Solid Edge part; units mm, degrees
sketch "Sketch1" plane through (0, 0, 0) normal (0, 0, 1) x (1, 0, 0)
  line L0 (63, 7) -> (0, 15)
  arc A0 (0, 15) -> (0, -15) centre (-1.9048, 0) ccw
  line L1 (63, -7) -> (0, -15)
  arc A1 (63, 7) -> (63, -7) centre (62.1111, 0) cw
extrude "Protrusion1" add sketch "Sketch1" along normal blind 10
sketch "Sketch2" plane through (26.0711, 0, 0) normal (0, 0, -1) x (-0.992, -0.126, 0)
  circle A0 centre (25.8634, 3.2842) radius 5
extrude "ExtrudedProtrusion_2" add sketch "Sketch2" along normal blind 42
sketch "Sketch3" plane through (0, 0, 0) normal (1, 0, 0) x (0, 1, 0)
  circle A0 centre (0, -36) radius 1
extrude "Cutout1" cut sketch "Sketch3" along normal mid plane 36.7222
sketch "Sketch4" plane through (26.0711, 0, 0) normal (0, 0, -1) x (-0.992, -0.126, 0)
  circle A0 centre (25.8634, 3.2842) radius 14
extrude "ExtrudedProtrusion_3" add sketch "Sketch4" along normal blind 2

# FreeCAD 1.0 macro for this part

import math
import FreeCAD as App
import Part
import Sketcher

doc = App.newDocument("Part")
params = doc.addObject("Spreadsheet::Sheet", "Params")
for row, (alias, value) in enumerate([
    ("pad1_length", "10 mm"),
    ("sketch2_diameter", "10 mm"),
    ("pad2_length", "42 mm"),
    ("sketch3_diameter", "2 mm"),
    ("pocket1_length", "36.7222 mm"),
    ("sketch4_diameter", "28 mm"),
    ("pad3_length", "2 mm"),
], start=1):
    params.set(f"A{row}", alias)
    params.set(f"B{row}", "=" + value)
    params.setAlias(f"B{row}", alias)

body = doc.addObject("PartDesign::Body", "Body")

sketch1 = doc.addObject("Sketcher::SketchObject", "Sketch")
body.addObject(sketch1)
sketch1.AttachmentSupport = (doc.XY_Plane, [""])
sketch1.MapMode = "FlatFace"
sketch1.addGeometry([
    Part.ArcOfCircle(Part.Circle(App.Vector(62, 0, 0), App.Vector(0, 0, 1), 7), math.radians(-83), math.radians(83)),
    Part.LineSegment(App.Vector(63, 7, 0), App.Vector(0, 15, 0)),
    Part.ArcOfCircle(Part.Circle(App.Vector(-2, 0, 0), App.Vector(0, 0, 1), 15), math.radians(83), math.radians(277)),
    Part.LineSegment(App.Vector(0, -15, 0), App.Vector(63, -7, 0)),
], False)
sketch1.addConstraint([
    Sketcher.Constraint("Tangent", 0, 2, 1, 1),
    Sketcher.Constraint("Tangent", 1, 2, 2, 1),
    Sketcher.Constraint("Tangent", 2, 2, 3, 1),
    Sketcher.Constraint("Tangent", 3, 2, 0, 1),
    Sketcher.Constraint("Symmetric", 1, 2, 2, 2, -1, 1),
    Sketcher.Constraint("PointOnObject", 0, 3, -1),
    Sketcher.Constraint("DistanceX", -1, 1, 0, 2, 63.0),
    Sketcher.Constraint("DistanceY", -1, 1, 0, 2, 7.0),
    Sketcher.Constraint("DistanceY", -1, 1, 1, 2, 15.0),
])
pad1 = doc.addObject("PartDesign::Pad", "Pad")
body.addObject(pad1)
pad1.Profile = sketch1
pad1.setExpression("Length", "Params.pad1_length")

sketch2 = doc.addObject("Sketcher::SketchObject", "Sketch001")
body.addObject(sketch2)
sketch2.AttachmentSupport = (doc.XY_Plane, [""])
sketch2.MapMode = "FlatFace"
sketch2.addGeometry(Part.Circle(App.Vector(0, 0, 0), App.Vector(0, 0, 1), 5), False)
sketch2.addConstraint([
    Sketcher.Constraint("PointOnObject", 0, 3, -2),
    Sketcher.Constraint("Diameter", 0, 10.0),
    Sketcher.Constraint("DistanceY", 0, 3, -1, 1, 0.0009),
])
sketch2.setExpression("Constraints[1]", "Params.sketch2_diameter")
pad2 = doc.addObject("PartDesign::Pad", "Pad001")
body.addObject(pad2)
pad2.Profile = sketch2
pad2.setExpression("Length", "Params.pad2_length")
pad2.Reversed = True

sketch3 = doc.addObject("Sketcher::SketchObject", "Sketch002")
body.addObject(sketch3)
sketch3.AttachmentSupport = (doc.YZ_Plane, [""])
sketch3.MapMode = "FlatFace"
sketch3.addGeometry(Part.Circle(App.Vector(0, -36, 0), App.Vector(0, 0, 1), 1), False)
sketch3.addConstraint([
    Sketcher.Constraint("PointOnObject", 0, 3, -2),
    Sketcher.Constraint("Diameter", 0, 2.0),
    Sketcher.Constraint("DistanceY", 0, 3, -1, 1, 36.0),
])
sketch3.setExpression("Constraints[1]", "Params.sketch3_diameter")
pocket1 = doc.addObject("PartDesign::Pocket", "Pocket")
body.addObject(pocket1)
pocket1.Profile = sketch3
pocket1.setExpression("Length", "Params.pocket1_length")
pocket1.Midplane = True

sketch4 = doc.addObject("Sketcher::SketchObject", "Sketch003")
body.addObject(sketch4)
sketch4.AttachmentSupport = (doc.XY_Plane, [""])
sketch4.MapMode = "FlatFace"
sketch4.addGeometry(Part.Circle(App.Vector(0, 0, 0), App.Vector(0, 0, 1), 14), False)
sketch4.addConstraint([
    Sketcher.Constraint("PointOnObject", 0, 3, -2),
    Sketcher.Constraint("Diameter", 0, 28.0),
    Sketcher.Constraint("DistanceY", 0, 3, -1, 1, 0.0009),
])
sketch4.setExpression("Constraints[1]", "Params.sketch4_diameter")
pad3 = doc.addObject("PartDesign::Pad", "Pad002")
body.addObject(pad3)
pad3.Profile = sketch4
pad3.setExpression("Length", "Params.pad3_length")
pad3.Reversed = True

doc.recompute()
